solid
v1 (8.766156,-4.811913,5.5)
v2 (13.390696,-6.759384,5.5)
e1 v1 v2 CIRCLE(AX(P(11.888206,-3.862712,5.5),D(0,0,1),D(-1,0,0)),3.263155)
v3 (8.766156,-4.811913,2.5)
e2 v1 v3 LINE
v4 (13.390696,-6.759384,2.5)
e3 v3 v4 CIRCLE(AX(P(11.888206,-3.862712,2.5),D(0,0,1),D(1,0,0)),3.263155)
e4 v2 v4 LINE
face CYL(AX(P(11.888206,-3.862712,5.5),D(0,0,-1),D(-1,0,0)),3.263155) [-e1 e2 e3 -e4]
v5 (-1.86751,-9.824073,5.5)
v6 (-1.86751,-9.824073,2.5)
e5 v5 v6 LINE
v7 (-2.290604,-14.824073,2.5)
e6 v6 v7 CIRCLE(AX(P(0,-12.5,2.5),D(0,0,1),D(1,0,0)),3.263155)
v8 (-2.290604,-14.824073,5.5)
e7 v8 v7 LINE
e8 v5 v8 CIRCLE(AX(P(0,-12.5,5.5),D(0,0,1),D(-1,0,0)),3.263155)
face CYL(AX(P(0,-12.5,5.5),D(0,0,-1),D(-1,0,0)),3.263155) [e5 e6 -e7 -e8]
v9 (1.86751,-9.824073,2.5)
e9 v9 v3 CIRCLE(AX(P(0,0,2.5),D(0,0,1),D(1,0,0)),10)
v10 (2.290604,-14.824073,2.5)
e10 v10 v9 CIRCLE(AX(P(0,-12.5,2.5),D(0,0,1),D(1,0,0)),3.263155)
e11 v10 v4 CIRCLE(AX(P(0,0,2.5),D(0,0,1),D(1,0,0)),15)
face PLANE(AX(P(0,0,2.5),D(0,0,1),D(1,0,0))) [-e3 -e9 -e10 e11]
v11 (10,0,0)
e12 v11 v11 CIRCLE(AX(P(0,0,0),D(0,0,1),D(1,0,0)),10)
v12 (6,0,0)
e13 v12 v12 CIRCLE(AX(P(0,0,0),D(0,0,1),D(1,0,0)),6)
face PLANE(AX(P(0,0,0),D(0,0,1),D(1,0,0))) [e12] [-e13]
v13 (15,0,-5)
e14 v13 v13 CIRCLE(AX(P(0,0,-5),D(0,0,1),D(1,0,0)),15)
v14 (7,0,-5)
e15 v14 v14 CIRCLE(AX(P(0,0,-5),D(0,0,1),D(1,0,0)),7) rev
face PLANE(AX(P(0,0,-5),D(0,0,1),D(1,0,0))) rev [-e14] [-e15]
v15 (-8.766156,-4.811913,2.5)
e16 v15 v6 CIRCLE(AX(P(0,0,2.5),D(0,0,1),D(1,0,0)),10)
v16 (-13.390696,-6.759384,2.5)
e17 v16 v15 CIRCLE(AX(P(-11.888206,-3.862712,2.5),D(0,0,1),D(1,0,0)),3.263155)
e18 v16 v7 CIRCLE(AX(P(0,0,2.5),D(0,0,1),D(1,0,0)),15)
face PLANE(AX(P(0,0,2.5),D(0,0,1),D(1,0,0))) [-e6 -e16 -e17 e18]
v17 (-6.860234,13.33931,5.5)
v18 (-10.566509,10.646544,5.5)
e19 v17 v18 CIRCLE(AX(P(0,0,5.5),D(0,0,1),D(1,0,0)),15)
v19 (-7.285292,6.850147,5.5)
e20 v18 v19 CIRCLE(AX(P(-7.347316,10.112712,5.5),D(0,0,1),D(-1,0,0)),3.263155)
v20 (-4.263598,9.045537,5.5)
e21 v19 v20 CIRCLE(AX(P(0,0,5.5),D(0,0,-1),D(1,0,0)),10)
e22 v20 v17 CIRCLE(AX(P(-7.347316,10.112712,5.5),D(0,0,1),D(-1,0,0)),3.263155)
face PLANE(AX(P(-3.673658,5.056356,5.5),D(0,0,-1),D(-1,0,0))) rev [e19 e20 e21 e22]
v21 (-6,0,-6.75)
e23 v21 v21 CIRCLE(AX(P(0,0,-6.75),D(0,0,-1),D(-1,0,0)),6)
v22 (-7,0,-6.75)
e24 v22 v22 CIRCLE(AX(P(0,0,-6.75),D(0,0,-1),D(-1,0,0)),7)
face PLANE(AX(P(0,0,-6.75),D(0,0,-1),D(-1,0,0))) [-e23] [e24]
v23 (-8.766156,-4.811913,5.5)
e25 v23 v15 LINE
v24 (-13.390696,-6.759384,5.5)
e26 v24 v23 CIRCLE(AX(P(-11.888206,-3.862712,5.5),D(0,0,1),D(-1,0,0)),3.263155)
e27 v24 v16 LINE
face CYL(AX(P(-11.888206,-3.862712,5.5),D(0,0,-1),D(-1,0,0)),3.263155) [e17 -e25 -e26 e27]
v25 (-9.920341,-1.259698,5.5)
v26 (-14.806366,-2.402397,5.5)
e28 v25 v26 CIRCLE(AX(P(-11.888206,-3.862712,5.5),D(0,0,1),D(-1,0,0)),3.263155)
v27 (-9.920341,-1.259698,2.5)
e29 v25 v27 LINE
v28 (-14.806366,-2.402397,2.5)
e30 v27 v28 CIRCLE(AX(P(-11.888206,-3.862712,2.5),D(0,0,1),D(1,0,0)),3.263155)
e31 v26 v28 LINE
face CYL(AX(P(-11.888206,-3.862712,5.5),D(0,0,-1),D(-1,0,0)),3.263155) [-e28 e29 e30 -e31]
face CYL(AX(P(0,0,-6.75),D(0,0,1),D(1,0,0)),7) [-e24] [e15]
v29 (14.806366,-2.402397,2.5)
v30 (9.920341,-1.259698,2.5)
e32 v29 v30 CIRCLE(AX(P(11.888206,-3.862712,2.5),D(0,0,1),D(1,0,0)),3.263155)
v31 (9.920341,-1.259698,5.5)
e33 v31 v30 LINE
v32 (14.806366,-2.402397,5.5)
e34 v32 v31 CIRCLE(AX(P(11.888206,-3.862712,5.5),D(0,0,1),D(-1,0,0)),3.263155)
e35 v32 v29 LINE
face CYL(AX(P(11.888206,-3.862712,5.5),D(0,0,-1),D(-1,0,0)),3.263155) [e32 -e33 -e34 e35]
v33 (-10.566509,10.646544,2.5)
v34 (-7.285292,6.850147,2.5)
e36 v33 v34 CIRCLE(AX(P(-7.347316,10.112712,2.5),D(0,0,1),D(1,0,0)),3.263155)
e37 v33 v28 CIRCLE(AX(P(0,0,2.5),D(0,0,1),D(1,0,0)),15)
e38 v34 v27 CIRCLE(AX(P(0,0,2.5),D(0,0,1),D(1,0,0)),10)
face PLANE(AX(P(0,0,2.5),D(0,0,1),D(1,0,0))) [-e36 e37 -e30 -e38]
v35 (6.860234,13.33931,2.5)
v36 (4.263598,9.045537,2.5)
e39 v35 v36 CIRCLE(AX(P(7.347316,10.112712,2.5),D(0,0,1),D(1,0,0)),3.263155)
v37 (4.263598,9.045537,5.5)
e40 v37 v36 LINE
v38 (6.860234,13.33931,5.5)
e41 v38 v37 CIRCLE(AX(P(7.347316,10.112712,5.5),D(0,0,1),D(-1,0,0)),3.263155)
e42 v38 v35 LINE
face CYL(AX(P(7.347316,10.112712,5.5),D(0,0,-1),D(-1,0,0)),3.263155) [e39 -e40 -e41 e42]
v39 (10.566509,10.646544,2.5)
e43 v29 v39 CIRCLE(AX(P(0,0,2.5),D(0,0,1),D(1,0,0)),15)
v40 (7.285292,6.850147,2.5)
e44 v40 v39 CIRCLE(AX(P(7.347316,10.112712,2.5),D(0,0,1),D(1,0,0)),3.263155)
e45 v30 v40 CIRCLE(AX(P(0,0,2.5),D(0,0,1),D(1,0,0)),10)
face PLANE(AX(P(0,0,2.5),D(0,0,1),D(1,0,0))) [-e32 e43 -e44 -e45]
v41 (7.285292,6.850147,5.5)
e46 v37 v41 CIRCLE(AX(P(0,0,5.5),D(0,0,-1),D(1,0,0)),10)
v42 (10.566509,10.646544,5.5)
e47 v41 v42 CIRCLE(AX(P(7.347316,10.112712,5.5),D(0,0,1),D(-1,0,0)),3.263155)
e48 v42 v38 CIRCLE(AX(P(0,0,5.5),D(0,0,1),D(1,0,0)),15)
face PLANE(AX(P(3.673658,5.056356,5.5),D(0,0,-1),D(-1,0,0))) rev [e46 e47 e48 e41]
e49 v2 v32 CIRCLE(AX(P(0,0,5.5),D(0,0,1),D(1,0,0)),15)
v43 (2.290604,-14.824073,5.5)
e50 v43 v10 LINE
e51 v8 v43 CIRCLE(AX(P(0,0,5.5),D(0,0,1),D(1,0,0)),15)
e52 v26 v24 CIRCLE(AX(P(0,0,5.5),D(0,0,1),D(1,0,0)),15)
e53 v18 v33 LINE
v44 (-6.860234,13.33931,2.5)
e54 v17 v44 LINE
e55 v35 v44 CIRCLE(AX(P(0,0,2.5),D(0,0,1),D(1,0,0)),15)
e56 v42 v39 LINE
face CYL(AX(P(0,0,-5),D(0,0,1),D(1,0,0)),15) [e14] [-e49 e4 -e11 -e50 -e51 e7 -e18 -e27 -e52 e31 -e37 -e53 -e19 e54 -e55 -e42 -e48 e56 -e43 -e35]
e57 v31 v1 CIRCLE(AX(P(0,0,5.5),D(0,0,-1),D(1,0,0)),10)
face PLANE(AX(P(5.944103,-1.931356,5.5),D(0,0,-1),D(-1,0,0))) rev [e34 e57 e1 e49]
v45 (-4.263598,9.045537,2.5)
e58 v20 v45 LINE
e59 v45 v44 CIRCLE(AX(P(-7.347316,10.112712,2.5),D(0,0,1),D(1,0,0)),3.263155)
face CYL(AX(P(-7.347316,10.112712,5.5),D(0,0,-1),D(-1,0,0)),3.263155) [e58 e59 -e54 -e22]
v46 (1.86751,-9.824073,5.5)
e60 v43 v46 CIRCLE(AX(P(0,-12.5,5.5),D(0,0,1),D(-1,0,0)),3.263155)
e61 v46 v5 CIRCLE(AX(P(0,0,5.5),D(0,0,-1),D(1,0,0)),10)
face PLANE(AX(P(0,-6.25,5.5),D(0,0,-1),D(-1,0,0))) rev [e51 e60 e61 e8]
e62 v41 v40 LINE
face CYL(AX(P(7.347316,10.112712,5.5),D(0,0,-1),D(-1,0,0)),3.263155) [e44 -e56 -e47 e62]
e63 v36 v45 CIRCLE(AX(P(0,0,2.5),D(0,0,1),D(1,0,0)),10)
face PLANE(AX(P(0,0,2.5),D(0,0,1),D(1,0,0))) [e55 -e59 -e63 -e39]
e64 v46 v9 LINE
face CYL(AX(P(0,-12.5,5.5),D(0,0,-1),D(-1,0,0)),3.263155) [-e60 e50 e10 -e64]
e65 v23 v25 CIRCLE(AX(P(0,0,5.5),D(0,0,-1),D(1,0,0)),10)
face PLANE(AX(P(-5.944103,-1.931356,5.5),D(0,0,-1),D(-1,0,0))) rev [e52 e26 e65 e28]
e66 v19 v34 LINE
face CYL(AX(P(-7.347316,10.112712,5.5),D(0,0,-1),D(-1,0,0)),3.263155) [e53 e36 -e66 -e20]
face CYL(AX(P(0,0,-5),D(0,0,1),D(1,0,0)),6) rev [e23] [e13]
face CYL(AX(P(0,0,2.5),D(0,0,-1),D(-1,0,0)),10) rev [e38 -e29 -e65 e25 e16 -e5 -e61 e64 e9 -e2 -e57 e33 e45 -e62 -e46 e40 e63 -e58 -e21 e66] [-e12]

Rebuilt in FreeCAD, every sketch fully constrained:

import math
import FreeCAD as App
import Part
import Sketcher
from FreeCAD import Vector

doc = App.newDocument("Part")
body = doc.addObject("PartDesign::Body", "Body")

sketch1 = body.newObject("Sketcher::SketchObject", "Sketch")
sketch1.AttachmentSupport = (doc.getObject("XY_Plane"), [""])
sketch1.MapMode = "FlatFace"
sketch1.addGeometry([
    Part.Circle(Vector(0, 0, 0), Vector(0, 0, 1), 15),
    Part.Circle(Vector(0, 0, 0), Vector(0, 0, 1), 6),
], False)
sketch1.addConstraint([
    Sketcher.Constraint("Coincident", 0, 3, -1, 1),
    Sketcher.Constraint("Coincident", 1, 3, -1, 1),
    Sketcher.Constraint("Diameter", 0, 30.0),
    Sketcher.Constraint("Diameter", 1, 12.0),
])
pad1 = body.newObject("PartDesign::Pad", "Pad")
pad1.Profile = sketch1
pad1.Length = 5
pad1.Reversed = True

sketch2 = body.newObject("Sketcher::SketchObject", "Sketch001")
sketch2.AttachmentSupport = (doc.getObject("XY_Plane"), [""])
sketch2.MapMode = "FlatFace"
sketch2.AttachmentOffset = App.Placement(Vector(0, 0, 2.5), App.Rotation())
sketch2.addGeometry([
    Part.Circle(Vector(0, 0, 0), Vector(0, 0, 1), 15),
    Part.Circle(Vector(0, 0, 0), Vector(0, 0, 1), 10),
], False)
sketch2.addConstraint([
    Sketcher.Constraint("Coincident", 0, 3, -1, 1),
    Sketcher.Constraint("Coincident", 1, 3, -1, 1),
    Sketcher.Constraint("Diameter", 0, 30.0),
    Sketcher.Constraint("Diameter", 1, 20.0),
])
pad2 = body.newObject("PartDesign::Pad", "Pad001")
pad2.Profile = sketch2
pad2.Length = 2.5
pad2.Reversed = True

sketch3 = body.newObject("Sketcher::SketchObject", "Sketch002")
sketch3.AttachmentSupport = (doc.getObject("XY_Plane"), [""])
sketch3.MapMode = "FlatFace"
sketch3.AttachmentOffset = App.Placement(Vector(0, 0, 5.5), App.Rotation())
sketch3.addGeometry([
    Part.ArcOfCircle(Part.Circle(Vector(0, 0, 0), Vector(0, 0, 1), 15), math.radians(-98.783828), math.radians(-81.216172)),
    Part.ArcOfCircle(Part.Circle(Vector(0, -12.5, 0), Vector(0, 0, 1), 3.263155), math.radians(-45.415547), math.radians(7.5)),
    Part.ArcOfCircle(Part.Circle(Vector(0, -12.5, 0), Vector(0, 0, 1), 3.263155), math.radians(7.5), math.radians(55.089096)),
    Part.ArcOfCircle(Part.Circle(Vector(0, 0, 0), Vector(0, 0, 1), 10), math.radians(-100.763236), math.radians(-79.236764)),
    Part.ArcOfCircle(Part.Circle(Vector(0, -12.5, 0), Vector(0, 0, 1), 3.263155), math.radians(124.910904), math.radians(172.5)),
    Part.ArcOfCircle(Part.Circle(Vector(0, -12.5, 0), Vector(0, 0, 1), 3.263155), math.radians(172.5), math.radians(225.415547)),
    Part.ArcOfCircle(Part.Circle(Vector(0, 0, 0), Vector(0, 0, 1), 15), math.radians(-170.783828), math.radians(-153.216172)),
    Part.ArcOfCircle(Part.Circle(Vector(-11.888206, -3.862712, 0), Vector(0, 0, 1), 3.263155), math.radians(-117.415547), math.radians(-64.5)),
    Part.ArcOfCircle(Part.Circle(Vector(-11.888206, -3.862712, 0), Vector(0, 0, 1), 3.263155), math.radians(-64.5), math.radians(-16.910904)),
    Part.ArcOfCircle(Part.Circle(Vector(0, 0, 0), Vector(0, 0, 1), 10), math.radians(-172.763236), math.radians(-151.236764)),
    Part.ArcOfCircle(Part.Circle(Vector(-11.888206, -3.862712, 0), Vector(0, 0, 1), 3.263155), math.radians(52.910904), math.radians(100.5)),
    Part.ArcOfCircle(Part.Circle(Vector(-11.888206, -3.862712, 0), Vector(0, 0, 1), 3.263155), math.radians(100.5), math.radians(153.415547)),
    Part.ArcOfCircle(Part.Circle(Vector(0, 0, 0), Vector(0, 0, 1), 15), math.radians(117.216172), math.radians(134.783828)),
    Part.ArcOfCircle(Part.Circle(Vector(-7.347316, 10.112712, 0), Vector(0, 0, 1), 3.263155), math.radians(170.584453), math.radians(223.5)),
    Part.ArcOfCircle(Part.Circle(Vector(-7.347316, 10.112712, 0), Vector(0, 0, 1), 3.263155), math.radians(-136.5), math.radians(-88.910904)),
    Part.ArcOfCircle(Part.Circle(Vector(0, 0, 0), Vector(0, 0, 1), 10), math.radians(115.236764), math.radians(136.763236)),
    Part.ArcOfCircle(Part.Circle(Vector(-7.347316, 10.112712, 0), Vector(0, 0, 1), 3.263155), math.radians(-19.089096), math.radians(28.5)),
    Part.ArcOfCircle(Part.Circle(Vector(-7.347316, 10.112712, 0), Vector(0, 0, 1), 3.263155), math.radians(28.5), math.radians(81.415547)),
    Part.ArcOfCircle(Part.Circle(Vector(0, 0, 0), Vector(0, 0, 1), 15), math.radians(45.216172), math.radians(62.783828)),
    Part.ArcOfCircle(Part.Circle(Vector(7.347316, 10.112712, 0), Vector(0, 0, 1), 3.263155), math.radians(98.584453), math.radians(151.5)),
    Part.ArcOfCircle(Part.Circle(Vector(7.347316, 10.112712, 0), Vector(0, 0, 1), 3.263155), math.radians(151.5), math.radians(199.089096)),
    Part.ArcOfCircle(Part.Circle(Vector(0, 0, 0), Vector(0, 0, 1), 10), math.radians(43.236764), math.radians(64.763236)),
    Part.ArcOfCircle(Part.Circle(Vector(7.347316, 10.112712, 0), Vector(0, 0, 1), 3.263155), math.radians(-91.089096), math.radians(-43.5)),
    Part.ArcOfCircle(Part.Circle(Vector(7.347316, 10.112712, 0), Vector(0, 0, 1), 3.263155), math.radians(-43.5), math.radians(9.415547)),
    Part.ArcOfCircle(Part.Circle(Vector(0, 0, 0), Vector(0, 0, 1), 15), math.radians(-26.783828), math.radians(-9.216172)),
    Part.ArcOfCircle(Part.Circle(Vector(11.888206, -3.862712, 0), Vector(0, 0, 1), 3.263155), math.radians(26.584453), math.radians(79.5)),
    Part.ArcOfCircle(Part.Circle(Vector(11.888206, -3.862712, 0), Vector(0, 0, 1), 3.263155), math.radians(79.5), math.radians(127.089096)),
    Part.ArcOfCircle(Part.Circle(Vector(0, 0, 0), Vector(0, 0, 1), 10), math.radians(-28.763236), math.radians(-7.236764)),
    Part.ArcOfCircle(Part.Circle(Vector(11.888206, -3.862712, 0), Vector(0, 0, 1), 3.263155), math.radians(-163.089096), math.radians(-115.5)),
    Part.ArcOfCircle(Part.Circle(Vector(11.888206, -3.862712, 0), Vector(0, 0, 1), 3.263155), math.radians(-115.5), math.radians(-62.584453)),
], False)
sketch3.addConstraint([
    Sketcher.Constraint("Coincident", 0, 2, 1, 1),
    Sketcher.Constraint("Tangent", 1, 2, 2, 1),
    Sketcher.Constraint("Coincident", 2, 2, 3, 2),
    Sketcher.Constraint("Coincident", 3, 1, 4, 1),
    Sketcher.Constraint("Tangent", 4, 2, 5, 1),
    Sketcher.Constraint("Coincident", 5, 2, 0, 1),
    Sketcher.Constraint("Coincident", 6, 2, 7, 1),
    Sketcher.Constraint("Tangent", 7, 2, 8, 1),
    Sketcher.Constraint("Coincident", 8, 2, 9, 2),
    Sketcher.Constraint("Coincident", 9, 1, 10, 1),
    Sketcher.Constraint("Tangent", 10, 2, 11, 1),
    Sketcher.Constraint("Coincident", 11, 2, 6, 1),
    Sketcher.Constraint("Coincident", 12, 2, 13, 1),
    Sketcher.Constraint("Tangent", 13, 2, 14, 1),
    Sketcher.Constraint("Coincident", 14, 2, 15, 2),
    Sketcher.Constraint("Coincident", 15, 1, 16, 1),
    Sketcher.Constraint("Tangent", 16, 2, 17, 1),
    Sketcher.Constraint("Coincident", 17, 2, 12, 1),
    Sketcher.Constraint("Coincident", 18, 2, 19, 1),
    Sketcher.Constraint("Tangent", 19, 2, 20, 1),
    Sketcher.Constraint("Coincident", 20, 2, 21, 2),
    Sketcher.Constraint("Coincident", 21, 1, 22, 1),
    Sketcher.Constraint("Tangent", 22, 2, 23, 1),
    Sketcher.Constraint("Coincident", 23, 2, 18, 1),
    Sketcher.Constraint("Coincident", 24, 2, 25, 1),
    Sketcher.Constraint("Tangent", 25, 2, 26, 1),
    Sketcher.Constraint("Coincident", 26, 2, 27, 2),
    Sketcher.Constraint("Coincident", 27, 1, 28, 1),
    Sketcher.Constraint("Tangent", 28, 2, 29, 1),
    Sketcher.Constraint("Coincident", 29, 2, 24, 1),
    Sketcher.Constraint("Coincident", 0, 3, -1, 1),
    Sketcher.Constraint("Coincident", 3, 3, -1, 1),
    Sketcher.Constraint("Coincident", 6, 3, -1, 1),
    Sketcher.Constraint("Coincident", 9, 3, -1, 1),
    Sketcher.Constraint("Coincident", 12, 3, -1, 1),
    Sketcher.Constraint("Coincident", 15, 3, -1, 1),
    Sketcher.Constraint("Coincident", 18, 3, -1, 1),
    Sketcher.Constraint("Coincident", 21, 3, -1, 1),
    Sketcher.Constraint("Coincident", 24, 3, -1, 1),
    Sketcher.Constraint("Coincident", 27, 3, -1, 1),
    Sketcher.Constraint("Coincident", 4, 3, 1, 3),
    Sketcher.Constraint("Coincident", 10, 3, 7, 3),
    Sketcher.Constraint("Coincident", 16, 3, 13, 3),
    Sketcher.Constraint("Coincident", 22, 3, 19, 3),
    Sketcher.Constraint("Coincident", 28, 3, 25, 3),
    Sketcher.Constraint("Equal", 1, 2),
    Sketcher.Constraint("Equal", 2, 4),
    Sketcher.Constraint("Equal", 4, 5),
    Sketcher.Constraint("Equal", 0, 6),
    Sketcher.Constraint("Equal", 5, 7),
    Sketcher.Constraint("Equal", 7, 8),
    Sketcher.Constraint("Equal", 3, 9),
    Sketcher.Constraint("Equal", 8, 10),
    Sketcher.Constraint("Equal", 10, 11),
    Sketcher.Constraint("Equal", 6, 12),
    Sketcher.Constraint("Equal", 11, 13),
    Sketcher.Constraint("Equal", 13, 14),
    Sketcher.Constraint("Equal", 9, 15),
    Sketcher.Constraint("Equal", 14, 16),
    Sketcher.Constraint("Equal", 16, 17),
    Sketcher.Constraint("Equal", 12, 18),
    Sketcher.Constraint("Equal", 17, 19),
    Sketcher.Constraint("Equal", 19, 20),
    Sketcher.Constraint("Equal", 15, 21),
    Sketcher.Constraint("Equal", 20, 22),
    Sketcher.Constraint("Equal", 22, 23),
    Sketcher.Constraint("Equal", 18, 24),
    Sketcher.Constraint("Equal", 23, 25),
    Sketcher.Constraint("Equal", 25, 26),
    Sketcher.Constraint("Equal", 21, 27),
    Sketcher.Constraint("Equal", 26, 28),
    Sketcher.Constraint("Equal", 28, 29),
    Sketcher.Constraint("Symmetric", 13, 3, 19, 3, -2),
    Sketcher.Constraint("Symmetric", 7, 3, 25, 3, -2),
    Sketcher.Constraint("Symmetric", 1, 2, 4, 2, -2),
    Sketcher.Constraint("Horizontal", 16, 2, 19, 2),
    Sketcher.Constraint("Horizontal", 13, 2, 22, 2),
    Sketcher.Constraint("Horizontal", 10, 2, 25, 2),
    Sketcher.Constraint("Horizontal", 7, 2, 28, 2),
    Sketcher.Constraint("Radius", 0, 15.0),
    Sketcher.Constraint("Radius", 3, 10.0),
    Sketcher.Constraint("DistanceY", 1, 3, -1, 1, 12.5),
    Sketcher.Constraint("DistanceY", 0, 2, 1, 2, 2.75),
    Sketcher.Constraint("Radius", 1, 3.263155),
    Sketcher.Constraint("DistanceX", 16, 2, 15, 1, 0.216001),
    Sketcher.Constraint("DistanceY", 9, 1, -1, 1, 1.259698),
    Sketcher.Constraint("DistanceY", 10, 2, -1, 1, 0.654199),
    Sketcher.Constraint("DistanceX", 16, 2, -1, 1, 4.479599),
    Sketcher.Constraint("DistanceY", 8, 2, 7, 3, 0.9492),
    Sketcher.Constraint("DistanceY", 24, 2, 22, 2, 10.268902),
    Sketcher.Constraint("DistanceX", 12, 2, -1, 1, 10.566509),
    Sketcher.Constraint("DistanceX", 7, 2, -1, 1, 10.483382),
])
pad3 = body.newObject("PartDesign::Pad", "Pad002")
pad3.Profile = sketch3
pad3.Length = 3
pad3.Reversed = True

sketch4 = body.newObject("Sketcher::SketchObject", "Sketch003")
sketch4.AttachmentSupport = (doc.getObject("XY_Plane"), [""])
sketch4.MapMode = "FlatFace"
sketch4.AttachmentOffset = App.Placement(Vector(0, 0, -5), App.Rotation())
sketch4.addGeometry([
    Part.Circle(Vector(0, 0, 0), Vector(0, 0, 1), 7),
    Part.Circle(Vector(0, 0, 0), Vector(0, 0, 1), 6),
], False)
sketch4.addConstraint([
    Sketcher.Constraint("Coincident", 0, 3, -1, 1),
    Sketcher.Constraint("Coincident", 1, 3, -1, 1),
    Sketcher.Constraint("Diameter", 0, 14.0),
    Sketcher.Constraint("Diameter", 1, 12.0),
])
pad4 = body.newObject("PartDesign::Pad", "Pad003")
pad4.Profile = sketch4
pad4.Length = 1.75
pad4.Reversed = True

doc.recompute()
